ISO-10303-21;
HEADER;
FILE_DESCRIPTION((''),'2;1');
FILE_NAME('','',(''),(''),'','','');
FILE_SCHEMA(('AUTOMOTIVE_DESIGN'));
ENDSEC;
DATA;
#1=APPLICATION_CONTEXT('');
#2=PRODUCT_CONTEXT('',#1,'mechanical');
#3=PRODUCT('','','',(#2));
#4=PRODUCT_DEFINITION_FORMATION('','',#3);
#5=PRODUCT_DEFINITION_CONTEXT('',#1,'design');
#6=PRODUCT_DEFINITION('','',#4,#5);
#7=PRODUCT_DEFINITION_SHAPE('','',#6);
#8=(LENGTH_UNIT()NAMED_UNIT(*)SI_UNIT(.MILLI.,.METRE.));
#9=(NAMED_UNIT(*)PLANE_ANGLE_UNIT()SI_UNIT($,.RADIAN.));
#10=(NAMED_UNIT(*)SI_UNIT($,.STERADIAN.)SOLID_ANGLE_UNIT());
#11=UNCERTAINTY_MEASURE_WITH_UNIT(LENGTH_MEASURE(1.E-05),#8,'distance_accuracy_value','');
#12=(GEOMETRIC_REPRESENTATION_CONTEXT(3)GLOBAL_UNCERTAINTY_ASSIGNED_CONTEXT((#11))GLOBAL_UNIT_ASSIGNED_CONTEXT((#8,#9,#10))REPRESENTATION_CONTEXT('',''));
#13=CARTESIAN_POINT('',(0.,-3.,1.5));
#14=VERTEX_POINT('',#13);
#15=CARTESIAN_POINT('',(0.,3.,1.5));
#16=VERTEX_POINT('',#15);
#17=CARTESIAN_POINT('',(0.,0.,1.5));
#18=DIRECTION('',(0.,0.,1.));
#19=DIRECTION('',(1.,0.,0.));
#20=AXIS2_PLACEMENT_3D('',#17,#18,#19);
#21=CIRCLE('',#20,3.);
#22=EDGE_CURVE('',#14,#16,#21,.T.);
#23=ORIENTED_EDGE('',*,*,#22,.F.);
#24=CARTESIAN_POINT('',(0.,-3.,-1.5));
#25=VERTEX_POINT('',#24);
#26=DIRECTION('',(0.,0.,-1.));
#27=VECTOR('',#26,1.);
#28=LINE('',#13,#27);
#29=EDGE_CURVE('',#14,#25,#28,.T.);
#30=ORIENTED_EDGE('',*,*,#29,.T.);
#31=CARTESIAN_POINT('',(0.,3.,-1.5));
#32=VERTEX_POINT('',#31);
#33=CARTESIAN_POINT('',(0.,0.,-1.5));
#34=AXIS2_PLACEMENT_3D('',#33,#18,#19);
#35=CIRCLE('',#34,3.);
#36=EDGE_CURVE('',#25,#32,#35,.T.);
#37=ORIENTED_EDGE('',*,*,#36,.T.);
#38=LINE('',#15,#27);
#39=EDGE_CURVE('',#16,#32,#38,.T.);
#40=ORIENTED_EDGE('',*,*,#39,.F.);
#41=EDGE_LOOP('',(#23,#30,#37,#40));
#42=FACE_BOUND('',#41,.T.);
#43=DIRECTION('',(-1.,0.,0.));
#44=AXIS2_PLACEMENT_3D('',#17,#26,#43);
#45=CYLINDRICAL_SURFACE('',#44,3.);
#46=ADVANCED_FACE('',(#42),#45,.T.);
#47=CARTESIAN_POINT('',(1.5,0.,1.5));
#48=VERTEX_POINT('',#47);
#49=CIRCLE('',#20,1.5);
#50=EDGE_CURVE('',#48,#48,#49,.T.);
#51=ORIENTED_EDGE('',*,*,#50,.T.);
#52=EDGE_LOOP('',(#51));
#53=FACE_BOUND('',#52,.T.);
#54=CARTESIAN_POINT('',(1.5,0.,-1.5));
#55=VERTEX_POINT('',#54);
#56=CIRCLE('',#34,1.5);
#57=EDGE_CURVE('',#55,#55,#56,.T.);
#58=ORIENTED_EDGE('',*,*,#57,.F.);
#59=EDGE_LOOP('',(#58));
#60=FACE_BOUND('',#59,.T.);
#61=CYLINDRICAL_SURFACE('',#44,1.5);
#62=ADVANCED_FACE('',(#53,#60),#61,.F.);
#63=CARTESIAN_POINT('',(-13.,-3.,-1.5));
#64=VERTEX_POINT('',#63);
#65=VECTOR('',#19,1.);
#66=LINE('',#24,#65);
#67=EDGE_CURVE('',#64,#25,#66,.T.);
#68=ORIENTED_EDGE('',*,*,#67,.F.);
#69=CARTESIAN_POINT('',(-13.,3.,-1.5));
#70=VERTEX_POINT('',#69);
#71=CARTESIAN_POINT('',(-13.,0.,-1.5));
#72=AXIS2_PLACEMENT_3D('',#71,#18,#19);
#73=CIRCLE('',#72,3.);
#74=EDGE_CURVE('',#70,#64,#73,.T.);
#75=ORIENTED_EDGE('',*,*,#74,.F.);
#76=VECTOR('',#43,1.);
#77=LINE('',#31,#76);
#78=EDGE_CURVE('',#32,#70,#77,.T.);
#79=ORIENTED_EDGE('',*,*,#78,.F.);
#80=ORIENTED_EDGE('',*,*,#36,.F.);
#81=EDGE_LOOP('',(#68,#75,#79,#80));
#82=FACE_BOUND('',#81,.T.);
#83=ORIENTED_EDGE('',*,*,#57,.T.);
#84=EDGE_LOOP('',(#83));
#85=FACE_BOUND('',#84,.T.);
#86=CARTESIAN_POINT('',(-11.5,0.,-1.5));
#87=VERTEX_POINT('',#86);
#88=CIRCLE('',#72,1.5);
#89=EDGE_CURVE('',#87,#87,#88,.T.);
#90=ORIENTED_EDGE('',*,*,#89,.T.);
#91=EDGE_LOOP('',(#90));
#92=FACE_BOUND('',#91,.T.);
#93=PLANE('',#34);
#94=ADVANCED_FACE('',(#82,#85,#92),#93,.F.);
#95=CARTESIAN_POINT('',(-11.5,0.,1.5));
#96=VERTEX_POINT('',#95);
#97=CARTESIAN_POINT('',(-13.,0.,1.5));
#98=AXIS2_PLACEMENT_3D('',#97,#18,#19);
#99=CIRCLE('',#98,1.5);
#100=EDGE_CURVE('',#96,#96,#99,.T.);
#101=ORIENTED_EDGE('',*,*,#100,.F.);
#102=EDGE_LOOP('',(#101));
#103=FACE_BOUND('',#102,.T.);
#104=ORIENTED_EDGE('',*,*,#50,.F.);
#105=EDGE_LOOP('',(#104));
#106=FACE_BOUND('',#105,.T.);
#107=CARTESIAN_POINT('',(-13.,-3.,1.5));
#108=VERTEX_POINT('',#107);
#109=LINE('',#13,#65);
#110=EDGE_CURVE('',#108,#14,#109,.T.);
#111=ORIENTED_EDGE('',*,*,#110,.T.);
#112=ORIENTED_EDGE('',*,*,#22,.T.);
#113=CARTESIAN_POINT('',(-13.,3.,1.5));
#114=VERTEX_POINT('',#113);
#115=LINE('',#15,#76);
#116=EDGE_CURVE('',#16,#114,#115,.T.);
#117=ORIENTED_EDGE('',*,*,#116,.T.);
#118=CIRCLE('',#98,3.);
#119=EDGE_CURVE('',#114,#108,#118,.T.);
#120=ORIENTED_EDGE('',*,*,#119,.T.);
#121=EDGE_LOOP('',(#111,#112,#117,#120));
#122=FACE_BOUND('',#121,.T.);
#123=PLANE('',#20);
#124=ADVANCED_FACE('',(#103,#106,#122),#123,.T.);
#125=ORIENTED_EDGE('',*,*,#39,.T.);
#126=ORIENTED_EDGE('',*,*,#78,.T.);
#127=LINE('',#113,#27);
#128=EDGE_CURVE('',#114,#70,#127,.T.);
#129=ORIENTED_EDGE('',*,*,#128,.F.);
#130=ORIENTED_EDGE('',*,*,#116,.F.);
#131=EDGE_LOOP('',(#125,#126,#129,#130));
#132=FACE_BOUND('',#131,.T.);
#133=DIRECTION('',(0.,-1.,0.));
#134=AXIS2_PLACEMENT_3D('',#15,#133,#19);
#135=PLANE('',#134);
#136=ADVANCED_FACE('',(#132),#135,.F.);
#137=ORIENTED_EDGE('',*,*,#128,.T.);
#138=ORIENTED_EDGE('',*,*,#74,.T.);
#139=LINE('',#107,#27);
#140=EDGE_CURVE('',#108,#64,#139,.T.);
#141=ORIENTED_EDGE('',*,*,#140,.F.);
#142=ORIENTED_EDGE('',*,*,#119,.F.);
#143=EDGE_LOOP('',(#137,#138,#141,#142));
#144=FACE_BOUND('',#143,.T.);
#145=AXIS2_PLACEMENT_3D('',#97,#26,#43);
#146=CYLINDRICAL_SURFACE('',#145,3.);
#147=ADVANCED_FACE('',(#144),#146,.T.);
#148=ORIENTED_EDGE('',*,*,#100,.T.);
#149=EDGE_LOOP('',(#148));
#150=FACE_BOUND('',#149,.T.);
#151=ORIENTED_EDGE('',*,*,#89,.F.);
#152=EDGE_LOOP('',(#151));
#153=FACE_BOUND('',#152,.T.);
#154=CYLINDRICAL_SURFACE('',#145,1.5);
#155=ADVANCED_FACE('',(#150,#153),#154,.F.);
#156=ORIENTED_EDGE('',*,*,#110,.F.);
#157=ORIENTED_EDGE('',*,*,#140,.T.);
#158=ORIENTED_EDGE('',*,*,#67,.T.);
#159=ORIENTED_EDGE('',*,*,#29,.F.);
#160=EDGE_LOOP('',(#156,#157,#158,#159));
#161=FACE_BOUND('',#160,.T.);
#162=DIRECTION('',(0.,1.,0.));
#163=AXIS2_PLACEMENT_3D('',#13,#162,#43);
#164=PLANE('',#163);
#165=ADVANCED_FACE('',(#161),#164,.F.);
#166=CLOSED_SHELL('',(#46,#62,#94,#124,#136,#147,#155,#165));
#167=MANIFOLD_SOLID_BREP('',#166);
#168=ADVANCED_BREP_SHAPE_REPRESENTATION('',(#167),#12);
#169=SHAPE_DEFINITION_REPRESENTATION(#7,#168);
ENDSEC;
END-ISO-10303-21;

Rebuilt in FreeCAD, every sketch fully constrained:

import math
import FreeCAD as App
import Part
import Sketcher
from FreeCAD import Vector

doc = App.newDocument("Part")
body = doc.addObject("PartDesign::Body", "Body")

# Sketch on XY plane
sketch1 = body.newObject("Sketcher::SketchObject", "Sketch")
sketch1.AttachmentSupport = (doc.getObject("XY_Plane"), [""])
sketch1.MapMode = "FlatFace"
sketch1.addGeometry([
    Part.LineSegment(Vector(-13, -3, 0), Vector(0, -3, 0)),  # 0
    Part.ArcOfCircle(Part.Circle(Vector(0, 0, 0), Vector(0, 0, 1), 3), math.radians(-90), math.radians(90)),  # 1
    Part.LineSegment(Vector(0, 3, 0), Vector(-13, 3, 0)),  # 2
    Part.ArcOfCircle(Part.Circle(Vector(-13, 0, 0), Vector(0, 0, 1), 3), math.radians(90), math.radians(270)),  # 3
    Part.Circle(Vector(0, 0, 0), Vector(0, 0, 1), 1.5),  # 4
    Part.Circle(Vector(-13, 0, 0), Vector(0, 0, 1), 1.5),  # 5
], False)
sketch1.addConstraint([
    Sketcher.Constraint("Tangent", 0, 2, 1, 1),
    Sketcher.Constraint("Tangent", 1, 2, 2, 1),
    Sketcher.Constraint("Tangent", 2, 2, 3, 1),
    Sketcher.Constraint("Tangent", 3, 2, 0, 1),
    Sketcher.Constraint("Horizontal", 0),
    Sketcher.Constraint("Horizontal", 2),
    Sketcher.Constraint("Coincident", 1, 3, -1, 1),
    Sketcher.Constraint("Coincident", 4, 3, -1, 1),
    Sketcher.Constraint("Coincident", 5, 3, 3, 3),
    Sketcher.Constraint("Equal", 4, 5),
    Sketcher.Constraint("Diameter", 4, 3.0),
    Sketcher.Constraint("Radius", 1, 3.0),
    Sketcher.Constraint("DistanceX", 0, 1, 0, 2, 13.0),
])
pad1 = body.newObject("PartDesign::Pad", "Pad")
pad1.Profile = sketch1
pad1.Length = 3
pad1.Midplane = True

doc.recompute()
